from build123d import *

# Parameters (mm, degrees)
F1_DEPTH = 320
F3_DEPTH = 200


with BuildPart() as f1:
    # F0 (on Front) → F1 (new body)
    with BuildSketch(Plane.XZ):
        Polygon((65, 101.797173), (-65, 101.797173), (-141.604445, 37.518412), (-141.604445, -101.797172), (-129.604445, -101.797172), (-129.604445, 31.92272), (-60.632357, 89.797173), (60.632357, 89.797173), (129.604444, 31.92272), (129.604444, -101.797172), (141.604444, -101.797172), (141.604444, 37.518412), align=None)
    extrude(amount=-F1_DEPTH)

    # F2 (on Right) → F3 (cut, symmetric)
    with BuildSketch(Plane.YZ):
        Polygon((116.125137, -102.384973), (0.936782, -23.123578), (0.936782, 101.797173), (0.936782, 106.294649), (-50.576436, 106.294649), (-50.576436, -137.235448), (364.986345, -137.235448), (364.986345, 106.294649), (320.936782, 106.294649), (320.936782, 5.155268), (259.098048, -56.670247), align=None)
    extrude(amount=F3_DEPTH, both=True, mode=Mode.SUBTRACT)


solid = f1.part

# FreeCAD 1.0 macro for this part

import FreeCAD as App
import Part
import Sketcher

V = App.Vector
Q = App.Units.Quantity

doc = App.newDocument("Part")
body = doc.addObject("PartDesign::Body", "Body")

sketch1 = doc.addObject("Sketcher::SketchObject", "Sketch")
body.addObject(sketch1)
sketch1.AttachmentSupport = (doc.XZ_Plane, [""])
sketch1.MapMode = "FlatFace"
sketch1.addGeometry([
    Part.LineSegment(V(65, 102, 0), V(-65, 102, 0)),
    Part.LineSegment(V(-65, 102, 0), V(-142, 38, 0)),
    Part.LineSegment(V(-142, 38, 0), V(-142, -102, 0)),
    Part.LineSegment(V(-142, -102, 0), V(-130, -102, 0)),
    Part.LineSegment(V(-130, -102, 0), V(-130, 32, 0)),
    Part.LineSegment(V(-130, 32, 0), V(-61, 90, 0)),
    Part.LineSegment(V(-61, 90, 0), V(61, 90, 0)),
    Part.LineSegment(V(61, 90, 0), V(130, 32, 0)),
    Part.LineSegment(V(130, 32, 0), V(130, -102, 0)),
    Part.LineSegment(V(130, -102, 0), V(142, -102, 0)),
    Part.LineSegment(V(142, -102, 0), V(142, 38, 0)),
    Part.LineSegment(V(142, 38, 0), V(65, 102, 0)),
], False)
sketch1.addConstraint([
    Sketcher.Constraint("Coincident", 0, 2, 1, 1),
    Sketcher.Constraint("Coincident", 1, 2, 2, 1),
    Sketcher.Constraint("Coincident", 2, 2, 3, 1),
    Sketcher.Constraint("Coincident", 3, 2, 4, 1),
    Sketcher.Constraint("Coincident", 4, 2, 5, 1),
    Sketcher.Constraint("Coincident", 5, 2, 6, 1),
    Sketcher.Constraint("Coincident", 6, 2, 7, 1),
    Sketcher.Constraint("Coincident", 7, 2, 8, 1),
    Sketcher.Constraint("Coincident", 8, 2, 9, 1),
    Sketcher.Constraint("Coincident", 9, 2, 10, 1),
    Sketcher.Constraint("Coincident", 10, 2, 11, 1),
    Sketcher.Constraint("Coincident", 11, 2, 0, 1),
    Sketcher.Constraint("Horizontal", 0),
    Sketcher.Constraint("Vertical", 2),
    Sketcher.Constraint("Horizontal", 3),
    Sketcher.Constraint("Vertical", 4),
    Sketcher.Constraint("Horizontal", 6),
    Sketcher.Constraint("Vertical", 8),
    Sketcher.Constraint("Horizontal", 9),
    Sketcher.Constraint("Vertical", 10),
    Sketcher.Constraint("Symmetric", 4, 2, 7, 2, -2),
    Sketcher.Constraint("Symmetric", 2, 2, 9, 2, -2),
    Sketcher.Constraint("Parallel", 1, 5),
    Sketcher.Constraint("Parallel", 7, 11),
    Sketcher.Constraint("Horizontal", 1, 2, 10, 2),
    Sketcher.Constraint("Equal", 5, 7),
    Sketcher.Constraint("DistanceX", 0, 2, 0, 1, Q("130 mm")),
    Sketcher.Constraint("DistanceX", 3, 1, 3, 2, Q("12 mm")),
    Sketcher.Constraint("Angle", 1, Q("-140 deg")),
    Sketcher.Constraint("Distance", 1, Q("100.000001 mm")),
    Sketcher.Constraint("DistanceY", 5, 2, 0, 2, Q("12 mm")),
    Sketcher.Constraint("DistanceX", 5, 2, 7, 2, Q("190.236801 mm")),
    Sketcher.Constraint("DistanceY", 2, 2, 2, 1, Q("139.315584 mm")),
    Sketcher.Constraint("DistanceY", -1, 1, 1, 2, Q("37.518412 mm")),
])
pad1 = doc.addObject("PartDesign::Pad", "Pad")
body.addObject(pad1)
pad1.Profile = sketch1
pad1.Length = 320
pad1.Reversed = True

sketch2 = doc.addObject("Sketcher::SketchObject", "Sketch001")
body.addObject(sketch2)
sketch2.AttachmentSupport = (doc.YZ_Plane, [""])
sketch2.MapMode = "FlatFace"
sketch2.addGeometry([
    Part.LineSegment(V(116, -102, 0), V(1, -23, 0)),
    Part.LineSegment(V(1, -23, 0), V(1, 106, 0)),
    Part.LineSegment(V(1, 106, 0), V(-51, 106, 0)),
    Part.LineSegment(V(-51, 106, 0), V(-51, -137, 0)),
    Part.LineSegment(V(-51, -137, 0), V(365, -137, 0)),
    Part.LineSegment(V(365, -137, 0), V(365, 106, 0)),
    Part.LineSegment(V(365, 106, 0), V(321, 106, 0)),
    Part.LineSegment(V(321, 106, 0), V(321, 5, 0)),
    Part.LineSegment(V(321, 5, 0), V(259, -57, 0)),
    Part.LineSegment(V(259, -57, 0), V(116, -102, 0)),
], False)
sketch2.addConstraint([
    Sketcher.Constraint("Coincident", 0, 2, 1, 1),
    Sketcher.Constraint("Coincident", 1, 2, 2, 1),
    Sketcher.Constraint("Coincident", 2, 2, 3, 1),
    Sketcher.Constraint("Coincident", 3, 2, 4, 1),
    Sketcher.Constraint("Coincident", 4, 2, 5, 1),
    Sketcher.Constraint("Coincident", 5, 2, 6, 1),
    Sketcher.Constraint("Coincident", 6, 2, 7, 1),
    Sketcher.Constraint("Coincident", 7, 2, 8, 1),
    Sketcher.Constraint("Coincident", 8, 2, 9, 1),
    Sketcher.Constraint("Coincident", 9, 2, 0, 1),
    Sketcher.Constraint("Vertical", 1),
    Sketcher.Constraint("Horizontal", 2),
    Sketcher.Constraint("Vertical", 3),
    Sketcher.Constraint("Horizontal", 4),
    Sketcher.Constraint("Vertical", 5),
    Sketcher.Constraint("Horizontal", 6),
    Sketcher.Constraint("Vertical", 7),
    Sketcher.Constraint("Horizontal", 2, 2, 5, 2),
    Sketcher.Constraint("DistanceX", 1, 2, 6, 2, Q("320 mm")),
    Sketcher.Constraint("DistanceX", 2, 2, 2, 1, Q("51.513218 mm")),
    Sketcher.Constraint("DistanceX", 4, 1, 4, 2, Q("415.562781 mm")),
    Sketcher.Constraint("DistanceY", 7, 2, 7, 1, Q("101.139381 mm")),
    Sketcher.Constraint("DistanceY", 4, 2, 8, 2, Q("80.565201 mm")),
    Sketcher.Constraint("Distance", 0, Q("139.82391 mm")),
    Sketcher.Constraint("Distance", 8, Q("87.44383 mm")),
    Sketcher.Constraint("DistanceY", 1, 1, 1, 2, Q("129.418227 mm")),
    Sketcher.Constraint("DistanceY", 3, 2, 3, 1, Q("243.530097 mm")),
    Sketcher.Constraint("DistanceY", -1, 1, 1, 2, Q("106.294649 mm")),
    Sketcher.Constraint("DistanceX", -1, 1, 6, 2, Q("320.936782 mm")),
    Sketcher.Constraint("DistanceX", 9, 2, 8, 2, Q("142.972911 mm")),
])
pocket1 = doc.addObject("PartDesign::Pocket", "Pocket")
body.addObject(pocket1)
pocket1.Profile = sketch2
pocket1.Length = 400
pocket1.Midplane = True

doc.recompute()
